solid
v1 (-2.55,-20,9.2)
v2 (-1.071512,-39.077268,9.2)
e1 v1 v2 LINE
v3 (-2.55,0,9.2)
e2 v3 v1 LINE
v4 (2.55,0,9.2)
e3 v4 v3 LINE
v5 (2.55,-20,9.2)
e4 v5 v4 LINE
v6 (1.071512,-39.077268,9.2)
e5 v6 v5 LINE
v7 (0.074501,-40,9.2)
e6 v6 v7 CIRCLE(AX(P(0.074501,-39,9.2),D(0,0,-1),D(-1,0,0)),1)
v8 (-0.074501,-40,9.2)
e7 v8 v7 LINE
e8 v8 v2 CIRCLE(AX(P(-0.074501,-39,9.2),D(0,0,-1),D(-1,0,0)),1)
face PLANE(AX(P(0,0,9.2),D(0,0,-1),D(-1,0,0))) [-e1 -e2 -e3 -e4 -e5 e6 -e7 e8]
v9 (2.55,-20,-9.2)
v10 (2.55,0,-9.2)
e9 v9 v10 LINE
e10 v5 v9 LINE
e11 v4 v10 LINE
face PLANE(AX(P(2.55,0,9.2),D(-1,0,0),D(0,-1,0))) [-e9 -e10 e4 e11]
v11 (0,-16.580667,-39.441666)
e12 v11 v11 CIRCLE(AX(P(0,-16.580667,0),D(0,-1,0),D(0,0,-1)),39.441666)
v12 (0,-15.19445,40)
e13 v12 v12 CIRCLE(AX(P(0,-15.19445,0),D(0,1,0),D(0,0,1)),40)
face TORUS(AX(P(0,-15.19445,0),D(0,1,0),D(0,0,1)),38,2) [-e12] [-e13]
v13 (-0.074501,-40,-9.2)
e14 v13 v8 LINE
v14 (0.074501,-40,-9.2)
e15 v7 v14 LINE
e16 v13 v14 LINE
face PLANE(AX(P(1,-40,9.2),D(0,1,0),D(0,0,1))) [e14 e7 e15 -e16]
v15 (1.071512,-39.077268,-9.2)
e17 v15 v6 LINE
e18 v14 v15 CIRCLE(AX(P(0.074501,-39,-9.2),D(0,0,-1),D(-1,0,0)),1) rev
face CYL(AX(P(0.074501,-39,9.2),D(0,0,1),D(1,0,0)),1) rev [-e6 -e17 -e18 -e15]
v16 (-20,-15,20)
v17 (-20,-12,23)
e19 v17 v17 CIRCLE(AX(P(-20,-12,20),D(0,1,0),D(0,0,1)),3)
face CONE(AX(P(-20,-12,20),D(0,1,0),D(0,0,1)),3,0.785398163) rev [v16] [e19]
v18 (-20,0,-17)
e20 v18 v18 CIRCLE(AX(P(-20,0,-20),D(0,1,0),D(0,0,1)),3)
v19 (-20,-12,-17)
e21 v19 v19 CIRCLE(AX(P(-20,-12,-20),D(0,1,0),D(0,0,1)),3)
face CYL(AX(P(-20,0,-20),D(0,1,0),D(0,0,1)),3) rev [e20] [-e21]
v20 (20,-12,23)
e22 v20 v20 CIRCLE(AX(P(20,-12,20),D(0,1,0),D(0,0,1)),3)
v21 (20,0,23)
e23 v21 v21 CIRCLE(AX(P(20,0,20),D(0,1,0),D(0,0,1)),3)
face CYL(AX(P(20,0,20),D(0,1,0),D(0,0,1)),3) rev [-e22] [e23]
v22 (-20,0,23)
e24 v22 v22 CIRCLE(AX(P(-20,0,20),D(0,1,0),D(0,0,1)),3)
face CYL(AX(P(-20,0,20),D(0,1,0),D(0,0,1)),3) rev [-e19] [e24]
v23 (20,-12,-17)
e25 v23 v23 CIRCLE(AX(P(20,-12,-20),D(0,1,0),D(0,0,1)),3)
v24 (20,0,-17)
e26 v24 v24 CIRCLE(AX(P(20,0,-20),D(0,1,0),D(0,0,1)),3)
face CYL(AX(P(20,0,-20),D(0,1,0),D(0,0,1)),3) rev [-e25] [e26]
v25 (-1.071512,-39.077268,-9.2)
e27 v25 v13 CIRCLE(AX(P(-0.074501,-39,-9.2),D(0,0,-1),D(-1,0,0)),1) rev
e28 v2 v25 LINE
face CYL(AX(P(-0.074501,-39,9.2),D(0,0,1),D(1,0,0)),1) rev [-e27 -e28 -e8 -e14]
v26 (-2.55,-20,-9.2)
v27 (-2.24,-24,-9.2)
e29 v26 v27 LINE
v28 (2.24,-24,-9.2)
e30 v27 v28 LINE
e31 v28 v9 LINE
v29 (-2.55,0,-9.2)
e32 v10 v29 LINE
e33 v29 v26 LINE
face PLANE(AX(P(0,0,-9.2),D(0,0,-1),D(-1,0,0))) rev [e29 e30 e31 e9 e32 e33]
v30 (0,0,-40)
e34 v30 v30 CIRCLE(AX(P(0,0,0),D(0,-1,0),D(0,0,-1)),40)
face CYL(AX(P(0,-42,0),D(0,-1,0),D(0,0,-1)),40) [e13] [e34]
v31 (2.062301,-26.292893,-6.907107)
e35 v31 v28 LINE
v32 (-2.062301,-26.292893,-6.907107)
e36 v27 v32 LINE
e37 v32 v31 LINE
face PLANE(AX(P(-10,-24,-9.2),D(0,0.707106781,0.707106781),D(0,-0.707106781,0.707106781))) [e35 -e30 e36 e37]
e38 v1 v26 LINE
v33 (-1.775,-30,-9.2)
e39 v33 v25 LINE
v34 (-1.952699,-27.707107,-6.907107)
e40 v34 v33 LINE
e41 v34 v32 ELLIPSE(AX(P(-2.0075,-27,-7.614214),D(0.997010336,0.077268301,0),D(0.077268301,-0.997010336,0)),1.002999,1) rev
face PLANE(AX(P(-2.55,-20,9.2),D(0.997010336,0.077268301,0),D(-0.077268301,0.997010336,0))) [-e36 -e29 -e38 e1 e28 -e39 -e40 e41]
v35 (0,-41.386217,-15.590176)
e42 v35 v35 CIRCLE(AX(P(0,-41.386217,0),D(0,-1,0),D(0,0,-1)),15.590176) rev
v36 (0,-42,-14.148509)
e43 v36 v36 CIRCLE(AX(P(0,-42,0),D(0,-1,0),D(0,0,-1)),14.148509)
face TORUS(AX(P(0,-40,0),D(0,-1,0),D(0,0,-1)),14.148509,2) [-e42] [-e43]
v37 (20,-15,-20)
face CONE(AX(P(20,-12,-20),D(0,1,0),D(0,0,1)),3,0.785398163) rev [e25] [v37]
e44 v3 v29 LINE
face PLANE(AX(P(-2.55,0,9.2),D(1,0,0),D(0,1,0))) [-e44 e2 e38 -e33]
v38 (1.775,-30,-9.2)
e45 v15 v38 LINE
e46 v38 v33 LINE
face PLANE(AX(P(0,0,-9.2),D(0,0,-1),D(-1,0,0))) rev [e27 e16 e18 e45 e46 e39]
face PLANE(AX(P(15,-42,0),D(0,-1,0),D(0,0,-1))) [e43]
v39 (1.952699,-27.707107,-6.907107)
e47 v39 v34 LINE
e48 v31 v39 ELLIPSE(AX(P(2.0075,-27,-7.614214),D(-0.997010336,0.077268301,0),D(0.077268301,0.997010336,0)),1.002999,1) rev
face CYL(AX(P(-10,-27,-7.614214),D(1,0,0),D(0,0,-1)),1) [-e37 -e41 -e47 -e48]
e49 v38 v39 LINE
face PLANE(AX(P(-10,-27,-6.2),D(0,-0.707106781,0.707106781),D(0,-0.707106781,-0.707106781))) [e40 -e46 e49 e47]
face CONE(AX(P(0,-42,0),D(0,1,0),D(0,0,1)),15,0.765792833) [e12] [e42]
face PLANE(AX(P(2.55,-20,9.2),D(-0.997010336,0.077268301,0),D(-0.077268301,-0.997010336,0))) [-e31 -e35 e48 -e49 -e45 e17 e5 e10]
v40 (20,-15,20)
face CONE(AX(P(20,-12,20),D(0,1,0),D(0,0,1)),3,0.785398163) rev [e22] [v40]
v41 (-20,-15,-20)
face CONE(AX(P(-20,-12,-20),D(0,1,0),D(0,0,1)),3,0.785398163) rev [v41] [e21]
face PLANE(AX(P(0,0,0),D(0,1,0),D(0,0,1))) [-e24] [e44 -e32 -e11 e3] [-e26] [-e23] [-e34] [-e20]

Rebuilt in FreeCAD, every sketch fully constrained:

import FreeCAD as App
import Part
import Sketcher
Q = App.Units.Quantity


def edges_at(feature, points):
    """Names of the edges that pass closest to the given points."""
    edges = feature.Shape.Edges
    near = lambda p: min(range(len(edges)), key=lambda i: edges[i].distToShape(Part.Vertex(*p))[0])
    return sorted({f"Edge{near(p) + 1}" for p in points})

doc = App.newDocument("Part")
body = doc.addObject("PartDesign::Body", "Body")

# Sketch on XY plane
sketch1 = body.newObject("Sketcher::SketchObject", "Sketch")
sketch1.AttachmentSupport = (doc.getObject("XY_Plane"), [""])
sketch1.MapMode = "FlatFace"
sketch1.addGeometry([
    Part.LineSegment(App.Vector(40, 0, 0), App.Vector(0, 0, 0)),  # 0
    Part.LineSegment(App.Vector(0, 0, 0), App.Vector(0, -42, 0)),  # 1
    Part.LineSegment(App.Vector(0, -42, 0), App.Vector(15, -42, 0)),  # 2
    Part.LineSegment(App.Vector(15, -42, 0), App.Vector(40, -16, 0)),  # 3
    Part.LineSegment(App.Vector(40, -16, 0), App.Vector(40, 0, 0)),  # 4
], False)
sketch1.addConstraint([
    Sketcher.Constraint("Coincident", 0, 2, 1, 1),
    Sketcher.Constraint("Coincident", 1, 2, 2, 1),
    Sketcher.Constraint("Coincident", 2, 2, 3, 1),
    Sketcher.Constraint("Coincident", 3, 2, 4, 1),
    Sketcher.Constraint("Coincident", 4, 2, 0, 1),
    Sketcher.Constraint("Horizontal", 0),
    Sketcher.Constraint("Vertical", 1),
    Sketcher.Constraint("Horizontal", 2),
    Sketcher.Constraint("Vertical", 4),
    Sketcher.Constraint("Coincident", 0, 2, -1, 1),
    Sketcher.Constraint("DistanceX", 0, 2, 0, 1, Q("40 mm")),
    Sketcher.Constraint("DistanceX", 2, 1, 2, 2, Q("15 mm")),
    Sketcher.Constraint("DistanceY", 1, 2, 1, 1, Q("42 mm")),
    Sketcher.Constraint("DistanceY", 4, 1, 4, 2, Q("16 mm")),
])
revolution = body.newObject("PartDesign::Revolution", "Revolution")
revolution.Profile = sketch1
revolution.ReferenceAxis = (sketch1, ["V_Axis"])
revolution.Angle = 360

# Sketch on XZ plane
sketch2 = body.newObject("Sketcher::SketchObject", "Sketch001")
sketch2.AttachmentSupport = (doc.getObject("XZ_Plane"), [""])
sketch2.MapMode = "FlatFace"
sketch2.addGeometry([
    Part.Circle(App.Vector(20, 20, 0), App.Vector(0, 0, 1), 3),
    Part.Circle(App.Vector(-20, -20, 0), App.Vector(0, 0, 1), 3),
    Part.Circle(App.Vector(-20, 20, 0), App.Vector(0, 0, 1), 3),
    Part.Circle(App.Vector(20, -20, 0), App.Vector(0, 0, 1), 3),
], False)
sketch2.addConstraint([
    Sketcher.Constraint("Equal", 0, 1),
    Sketcher.Constraint("Equal", 1, 2),
    Sketcher.Constraint("Equal", 2, 3),
    Sketcher.Constraint("Symmetric", 0, 3, 1, 3, -1, 1),
    Sketcher.Constraint("Symmetric", 2, 3, 3, 3, -1, 1),
    Sketcher.Constraint("Symmetric", 0, 3, 2, 3, -2),
    Sketcher.Constraint("Diameter", 0, Q("6 mm")),
    Sketcher.Constraint("DistanceX", -1, 1, 0, 3, Q("20 mm")),
    Sketcher.Constraint("DistanceY", -1, 1, 0, 3, Q("20 mm")),
])
doc.recompute()
hole = body.newObject("PartDesign::Hole", "Hole")
hole.Profile = sketch2
hole.ThreadType = "None"
hole.Diameter = 6
hole.DepthType = "Dimension"
hole.Depth = 12
hole.DrillPoint = "Angled"
hole.DrillPointAngle = 90
hole.Reversed = True

# Sketch on XY plane
sketch3 = body.newObject("Sketcher::SketchObject", "Sketch002")
sketch3.AttachmentSupport = (doc.getObject("XY_Plane"), [""])
sketch3.MapMode = "FlatFace"
sketch3.addGeometry([
    Part.LineSegment(App.Vector(2.5, 0, 0), App.Vector(-2.5, 0, 0)),  # 0
    Part.LineSegment(App.Vector(-2.5, 0, 0), App.Vector(-2.5, -20, 0)),  # 1
    Part.LineSegment(App.Vector(-2.5, -20, 0), App.Vector(-1, -40, 0)),  # 2
    Part.LineSegment(App.Vector(-1, -40, 0), App.Vector(1, -40, 0)),  # 3
    Part.LineSegment(App.Vector(1, -40, 0), App.Vector(2.5, -20, 0)),  # 4
    Part.LineSegment(App.Vector(2.5, -20, 0), App.Vector(2.5, 0, 0)),  # 5
], False)
sketch3.addConstraint([
    Sketcher.Constraint("Coincident", 0, 2, 1, 1),
    Sketcher.Constraint("Coincident", 1, 2, 2, 1),
    Sketcher.Constraint("Coincident", 2, 2, 3, 1),
    Sketcher.Constraint("Coincident", 3, 2, 4, 1),
    Sketcher.Constraint("Coincident", 4, 2, 5, 1),
    Sketcher.Constraint("Coincident", 5, 2, 0, 1),
    Sketcher.Constraint("Horizontal", 0),
    Sketcher.Constraint("Vertical", 1),
    Sketcher.Constraint("Horizontal", 3),
    Sketcher.Constraint("Vertical", 5),
    Sketcher.Constraint("Symmetric", 0, 2, 5, 2, -1, 1),
    Sketcher.Constraint("Horizontal", 1, 2, 4, 2),
    Sketcher.Constraint("Equal", 2, 4),
    Sketcher.Constraint("DistanceX", 3, 1, 3, 2, Q("2 mm")),
    Sketcher.Constraint("DistanceY", 1, 2, 1, 1, Q("20 mm")),
    Sketcher.Constraint("DistanceX", 0, 2, 0, 1, Q("5.1 mm")),
    Sketcher.Constraint("DistanceY", 2, 2, -1, 1, Q("40 mm")),
])
pocket1 = body.newObject("PartDesign::Pocket", "Pocket")
pocket1.Profile = sketch3
pocket1.Type = "TwoLengths"
pocket1.Length = 9.2
pocket1.Length2 = 9.2
pocket1.Reversed = True
doc.recompute()

fillet = body.newObject("PartDesign::Fillet", "Fillet")
fillet.Base = (pocket1, edges_at(pocket1, [(0, -42, 15)]))
fillet.Radius = 2
doc.recompute()

fillet2 = body.newObject("PartDesign::Fillet", "Fillet001")
fillet2.Base = (fillet, edges_at(fillet, [(0, -16, 40)]))
fillet2.Radius = 2
doc.recompute()

fillet3 = body.newObject("PartDesign::Fillet", "Fillet002")
fillet3.Base = (fillet2, edges_at(fillet2, [(1, -40, 0)]))
fillet3.Radius = 1
doc.recompute()

fillet4 = body.newObject("PartDesign::Fillet", "Fillet003")
fillet4.Base = (fillet3, edges_at(fillet3, [(-1, -40, 0)]))
fillet4.Radius = 1

# Sketch on YZ plane
sketch4 = body.newObject("Sketcher::SketchObject", "Sketch003")
sketch4.AttachmentSupport = (doc.getObject("YZ_Plane"), [""])
sketch4.MapMode = "FlatFace"
sketch4.addGeometry([
    Part.LineSegment(App.Vector(-30, -9.2, 0), App.Vector(-27, -12.2, 0)),
    Part.LineSegment(App.Vector(-27, -12.2, 0), App.Vector(-24, -9.2, 0)),
    Part.LineSegment(App.Vector(-24, -9.2, 0), App.Vector(-27, -6.2, 0)),
    Part.LineSegment(App.Vector(-27, -6.2, 0), App.Vector(-30, -9.2, 0)),
], False)
sketch4.addConstraint([
    Sketcher.Constraint("Coincident", 0, 2, 1, 1),
    Sketcher.Constraint("Coincident", 1, 2, 2, 1),
    Sketcher.Constraint("Coincident", 2, 2, 3, 1),
    Sketcher.Constraint("Coincident", 3, 2, 0, 1),
    Sketcher.Constraint("Perpendicular", 0, 1),
    Sketcher.Constraint("Perpendicular", 1, 2),
    Sketcher.Constraint("Perpendicular", 2, 3),
    Sketcher.Constraint("Horizontal", 1, 2, 3, 2),
    Sketcher.Constraint("Vertical", 0, 2, 2, 2),
    Sketcher.Constraint("DistanceX", 0, 2, -1, 1, Q("27 mm")),
    Sketcher.Constraint("DistanceX", 1, 2, -1, 1, Q("24 mm")),
    Sketcher.Constraint("DistanceY", 0, 2, -1, 1, Q("12.2 mm")),
])
pad1 = body.newObject("PartDesign::Pad", "Pad")
pad1.Profile = sketch4
pad1.Type = "TwoLengths"
pad1.Length = 10
pad1.Length2 = 10
doc.recompute()

fillet5 = body.newObject("PartDesign::Fillet", "Fillet004")
fillet5.Base = (pad1, edges_at(pad1, [(0, -27, -6.2)]))
fillet5.Radius = 1

doc.recompute()
